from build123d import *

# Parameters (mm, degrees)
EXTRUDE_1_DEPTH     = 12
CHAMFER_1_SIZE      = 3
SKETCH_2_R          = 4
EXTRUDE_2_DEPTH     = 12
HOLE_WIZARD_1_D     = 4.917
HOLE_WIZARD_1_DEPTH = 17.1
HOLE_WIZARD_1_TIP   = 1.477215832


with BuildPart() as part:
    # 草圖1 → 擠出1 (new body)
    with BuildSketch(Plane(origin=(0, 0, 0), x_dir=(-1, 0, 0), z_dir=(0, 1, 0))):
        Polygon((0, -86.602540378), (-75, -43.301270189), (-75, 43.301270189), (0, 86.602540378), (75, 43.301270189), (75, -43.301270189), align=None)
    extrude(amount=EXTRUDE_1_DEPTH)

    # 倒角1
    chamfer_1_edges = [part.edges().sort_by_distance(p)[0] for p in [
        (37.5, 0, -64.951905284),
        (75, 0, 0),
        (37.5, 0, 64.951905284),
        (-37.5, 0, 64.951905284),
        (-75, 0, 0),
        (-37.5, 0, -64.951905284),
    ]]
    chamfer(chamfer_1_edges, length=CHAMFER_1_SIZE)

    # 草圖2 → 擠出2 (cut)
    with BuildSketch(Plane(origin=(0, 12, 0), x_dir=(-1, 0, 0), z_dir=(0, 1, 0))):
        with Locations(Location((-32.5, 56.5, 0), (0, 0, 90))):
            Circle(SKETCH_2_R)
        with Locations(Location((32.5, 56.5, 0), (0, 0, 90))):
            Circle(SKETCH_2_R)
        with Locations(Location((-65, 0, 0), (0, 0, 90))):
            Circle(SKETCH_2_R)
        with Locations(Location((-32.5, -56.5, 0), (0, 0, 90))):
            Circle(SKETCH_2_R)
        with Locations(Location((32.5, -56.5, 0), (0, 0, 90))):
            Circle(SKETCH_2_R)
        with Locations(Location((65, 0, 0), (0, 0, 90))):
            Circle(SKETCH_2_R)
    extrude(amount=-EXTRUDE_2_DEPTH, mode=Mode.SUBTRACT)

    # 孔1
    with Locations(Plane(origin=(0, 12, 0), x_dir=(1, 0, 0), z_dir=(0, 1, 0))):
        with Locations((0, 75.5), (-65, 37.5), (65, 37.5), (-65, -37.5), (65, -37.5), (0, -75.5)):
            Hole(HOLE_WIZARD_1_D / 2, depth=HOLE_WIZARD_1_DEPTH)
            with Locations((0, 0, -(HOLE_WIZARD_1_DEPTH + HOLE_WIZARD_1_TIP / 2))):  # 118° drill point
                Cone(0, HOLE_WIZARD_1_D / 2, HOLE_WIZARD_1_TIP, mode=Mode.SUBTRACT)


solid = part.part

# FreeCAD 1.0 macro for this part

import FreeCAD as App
import Part
import Sketcher
Q = App.Units.Quantity


def edges_at(feature, points):
    """Names of the edges that pass closest to the given points."""
    edges = feature.Shape.Edges
    near = lambda p: min(range(len(edges)), key=lambda i: edges[i].distToShape(Part.Vertex(*p))[0])
    return sorted({f"Edge{near(p) + 1}" for p in points})


def add_polygon(sketch, points):
    """Adds a closed chain of lines whose ends are joined by coincident constraints."""
    first, n = sketch.GeometryCount, len(points)
    for a, b in zip(points, points[1:] + points[:1]):
        sketch.addGeometry(Part.LineSegment(App.Vector(*a, 0), App.Vector(*b, 0)), False)
    for i in range(n):
        sketch.addConstraint(Sketcher.Constraint("Coincident", first + i, 2, first + (i + 1) % n, 1))

doc = App.newDocument("Part")
params = doc.addObject("Spreadsheet::Sheet", "Params")
for row, (alias, value) in enumerate([
    ("pad1_length", "12 mm"),
    ("chamfer_size", "3 mm"),
    ("sketch2_diameter", "8 mm"),
    ("pocket1_length", "12 mm"),
    ("hole_diameter", "4.917 mm"),
    ("hole_depth", "17.1 mm"),
], start=1):
    params.set(f"A{row}", alias)
    params.set(f"B{row}", "=" + value)
    params.setAlias(f"B{row}", alias)

body = doc.addObject("PartDesign::Body", "Body")

# Sketch on XZ plane
sketch1 = doc.addObject("Sketcher::SketchObject", "Sketch")
body.addObject(sketch1)
sketch1.AttachmentSupport = (doc.XZ_Plane, [""])
sketch1.MapMode = "FlatFace"
add_polygon(sketch1, [(75, -43), (0, -87), (-75, -43), (-75, 43), (0, 87), (75, 43)])  # lines 0-5
sketch1.addConstraint(Sketcher.Constraint("Vertical", 2))
sketch1.addConstraint(Sketcher.Constraint("Vertical", 5))
sketch1.addConstraint(Sketcher.Constraint("Symmetric", 0, 2, 3, 2, -1, 1))
sketch1.addConstraint(Sketcher.Constraint("Symmetric", 1, 2, 4, 2, -1, 1))
sketch1.addConstraint(Sketcher.Constraint("PointOnObject", 0, 2, -2))
sketch1.addConstraint(Sketcher.Constraint("Parallel", 0, 3))
sketch1.addConstraint(Sketcher.Constraint("Horizontal", 2, 2, 4, 2))
sketch1.addConstraint(Sketcher.Constraint("Angle", 0, Q("-150 deg")))
sketch1.addConstraint(Sketcher.Constraint("DistanceX", 1, 2, -1, 1, 75.0))
sketch1.addConstraint(Sketcher.Constraint("DistanceY", 2, 1, 2, 2, 86.60254))
pad1 = doc.addObject("PartDesign::Pad", "Pad")
body.addObject(pad1)
pad1.Profile = sketch1
pad1.setExpression("Length", "Params.pad1_length")
pad1.Reversed = True
doc.recompute()

chamfer = doc.addObject("PartDesign::Chamfer", "Chamfer")
body.addObject(chamfer)
chamfer.Base = (pad1, edges_at(pad1, [
    (37.5, 0, -64.952),
    (75, 0, 0),
    (37.5, 0, 64.952),
    (-37.5, 0, 64.952),
    (-75, 0, 0),
    (-37.5, 0, -64.952),
]))
chamfer.setExpression("Size", "Params.chamfer_size")

# Sketch on XZ plane
sketch2 = doc.addObject("Sketcher::SketchObject", "Sketch001")
body.addObject(sketch2)
sketch2.AttachmentSupport = (doc.XZ_Plane, [""])
sketch2.MapMode = "FlatFace"
sketch2.AttachmentOffset = App.Placement(App.Vector(0, 0, -12), App.Rotation())
sketch2.addGeometry(Part.Circle(App.Vector(32.5, 56.5, 0), App.Vector(0, 0, 1), 4), False)
sketch2.addGeometry(Part.Circle(App.Vector(-32.5, 56.5, 0), App.Vector(0, 0, 1), 4), False)
sketch2.addGeometry(Part.Circle(App.Vector(65, 0, 0), App.Vector(0, 0, 1), 4), False)
sketch2.addGeometry(Part.Circle(App.Vector(32.5, -56.5, 0), App.Vector(0, 0, 1), 4), False)
sketch2.addGeometry(Part.Circle(App.Vector(-32.5, -56.5, 0), App.Vector(0, 0, 1), 4), False)
sketch2.addGeometry(Part.Circle(App.Vector(-65, 0, 0), App.Vector(0, 0, 1), 4), False)
sketch2.addConstraint(Sketcher.Constraint("Equal", 0, 1))
sketch2.addConstraint(Sketcher.Constraint("Equal", 1, 2))
sketch2.addConstraint(Sketcher.Constraint("Equal", 2, 3))
sketch2.addConstraint(Sketcher.Constraint("Equal", 3, 4))
sketch2.addConstraint(Sketcher.Constraint("Equal", 4, 5))
sketch2.addConstraint(Sketcher.Constraint("Symmetric", 1, 3, 3, 3, -1, 1))
sketch2.addConstraint(Sketcher.Constraint("Symmetric", 0, 3, 4, 3, -1, 1))
sketch2.addConstraint(Sketcher.Constraint("Symmetric", 2, 3, 5, 3, -1, 1))
sketch2.addConstraint(Sketcher.Constraint("Symmetric", 0, 3, 1, 3, -2))
sketch2.addConstraint(Sketcher.Constraint("PointOnObject", 2, 3, -1))
sketch2.addConstraint(Sketcher.Constraint("Diameter", 0, 8.0))
sketch2.addConstraint(Sketcher.Constraint("DistanceX", -1, 1, 2, 3, 65.0))
sketch2.addConstraint(Sketcher.Constraint("DistanceX", 1, 3, 0, 3, 65.0))
sketch2.addConstraint(Sketcher.Constraint("DistanceY", 3, 3, 0, 3, 113.0))
sketch2.setExpression("Constraints[10]", "Params.sketch2_diameter")
pocket1 = doc.addObject("PartDesign::Pocket", "Pocket")
body.addObject(pocket1)
pocket1.Profile = sketch2
pocket1.setExpression("Length", "Params.pocket1_length")
pocket1.Reversed = True

# Sketch on XZ plane
sketch3 = doc.addObject("Sketcher::SketchObject", "Sketch002")
body.addObject(sketch3)
sketch3.AttachmentSupport = (doc.XZ_Plane, [""])
sketch3.MapMode = "FlatFace"
sketch3.AttachmentOffset = App.Placement(App.Vector(0, 0, -12), App.Rotation())
sketch3.addGeometry(Part.Circle(App.Vector(0, -75.5, 0), App.Vector(0, 0, 1), 2.5), False)
sketch3.addGeometry(Part.Circle(App.Vector(-65, -37.5, 0), App.Vector(0, 0, 1), 2.5), False)
sketch3.addGeometry(Part.Circle(App.Vector(65, -37.5, 0), App.Vector(0, 0, 1), 2.5), False)
sketch3.addGeometry(Part.Circle(App.Vector(-65, 37.5, 0), App.Vector(0, 0, 1), 2.5), False)
sketch3.addGeometry(Part.Circle(App.Vector(65, 37.5, 0), App.Vector(0, 0, 1), 2.5), False)
sketch3.addGeometry(Part.Circle(App.Vector(0, 75.5, 0), App.Vector(0, 0, 1), 2.5), False)
sketch3.addConstraint(Sketcher.Constraint("Equal", 0, 1))
sketch3.addConstraint(Sketcher.Constraint("Equal", 1, 2))
sketch3.addConstraint(Sketcher.Constraint("Equal", 2, 3))
sketch3.addConstraint(Sketcher.Constraint("Equal", 3, 4))
sketch3.addConstraint(Sketcher.Constraint("Equal", 4, 5))
sketch3.addConstraint(Sketcher.Constraint("Symmetric", 2, 3, 3, 3, -1, 1))
sketch3.addConstraint(Sketcher.Constraint("Symmetric", 1, 3, 4, 3, -1, 1))
sketch3.addConstraint(Sketcher.Constraint("Symmetric", 0, 3, 5, 3, -1, 1))
sketch3.addConstraint(Sketcher.Constraint("Symmetric", 1, 3, 2, 3, -2))
sketch3.addConstraint(Sketcher.Constraint("PointOnObject", 0, 3, -2))
sketch3.addConstraint(Sketcher.Constraint("Diameter", 0, 4.917))
sketch3.addConstraint(Sketcher.Constraint("DistanceX", 1, 3, -1, 1, 65.0))
sketch3.addConstraint(Sketcher.Constraint("DistanceY", 0, 3, 1, 3, 38.0))
sketch3.addConstraint(Sketcher.Constraint("DistanceY", 1, 3, 3, 3, 75.0))
doc.recompute()
hole = doc.addObject("PartDesign::Hole", "Hole")
body.addObject(hole)
hole.Profile = sketch3
hole.ThreadType = "None"
hole.setExpression("Diameter", "Params.hole_diameter")
hole.DepthType = "Dimension"
hole.setExpression("Depth", "Params.hole_depth")
hole.DrillPoint = "Angled"
hole.DrillPointAngle = 118
hole.Reversed = True

doc.recompute()
